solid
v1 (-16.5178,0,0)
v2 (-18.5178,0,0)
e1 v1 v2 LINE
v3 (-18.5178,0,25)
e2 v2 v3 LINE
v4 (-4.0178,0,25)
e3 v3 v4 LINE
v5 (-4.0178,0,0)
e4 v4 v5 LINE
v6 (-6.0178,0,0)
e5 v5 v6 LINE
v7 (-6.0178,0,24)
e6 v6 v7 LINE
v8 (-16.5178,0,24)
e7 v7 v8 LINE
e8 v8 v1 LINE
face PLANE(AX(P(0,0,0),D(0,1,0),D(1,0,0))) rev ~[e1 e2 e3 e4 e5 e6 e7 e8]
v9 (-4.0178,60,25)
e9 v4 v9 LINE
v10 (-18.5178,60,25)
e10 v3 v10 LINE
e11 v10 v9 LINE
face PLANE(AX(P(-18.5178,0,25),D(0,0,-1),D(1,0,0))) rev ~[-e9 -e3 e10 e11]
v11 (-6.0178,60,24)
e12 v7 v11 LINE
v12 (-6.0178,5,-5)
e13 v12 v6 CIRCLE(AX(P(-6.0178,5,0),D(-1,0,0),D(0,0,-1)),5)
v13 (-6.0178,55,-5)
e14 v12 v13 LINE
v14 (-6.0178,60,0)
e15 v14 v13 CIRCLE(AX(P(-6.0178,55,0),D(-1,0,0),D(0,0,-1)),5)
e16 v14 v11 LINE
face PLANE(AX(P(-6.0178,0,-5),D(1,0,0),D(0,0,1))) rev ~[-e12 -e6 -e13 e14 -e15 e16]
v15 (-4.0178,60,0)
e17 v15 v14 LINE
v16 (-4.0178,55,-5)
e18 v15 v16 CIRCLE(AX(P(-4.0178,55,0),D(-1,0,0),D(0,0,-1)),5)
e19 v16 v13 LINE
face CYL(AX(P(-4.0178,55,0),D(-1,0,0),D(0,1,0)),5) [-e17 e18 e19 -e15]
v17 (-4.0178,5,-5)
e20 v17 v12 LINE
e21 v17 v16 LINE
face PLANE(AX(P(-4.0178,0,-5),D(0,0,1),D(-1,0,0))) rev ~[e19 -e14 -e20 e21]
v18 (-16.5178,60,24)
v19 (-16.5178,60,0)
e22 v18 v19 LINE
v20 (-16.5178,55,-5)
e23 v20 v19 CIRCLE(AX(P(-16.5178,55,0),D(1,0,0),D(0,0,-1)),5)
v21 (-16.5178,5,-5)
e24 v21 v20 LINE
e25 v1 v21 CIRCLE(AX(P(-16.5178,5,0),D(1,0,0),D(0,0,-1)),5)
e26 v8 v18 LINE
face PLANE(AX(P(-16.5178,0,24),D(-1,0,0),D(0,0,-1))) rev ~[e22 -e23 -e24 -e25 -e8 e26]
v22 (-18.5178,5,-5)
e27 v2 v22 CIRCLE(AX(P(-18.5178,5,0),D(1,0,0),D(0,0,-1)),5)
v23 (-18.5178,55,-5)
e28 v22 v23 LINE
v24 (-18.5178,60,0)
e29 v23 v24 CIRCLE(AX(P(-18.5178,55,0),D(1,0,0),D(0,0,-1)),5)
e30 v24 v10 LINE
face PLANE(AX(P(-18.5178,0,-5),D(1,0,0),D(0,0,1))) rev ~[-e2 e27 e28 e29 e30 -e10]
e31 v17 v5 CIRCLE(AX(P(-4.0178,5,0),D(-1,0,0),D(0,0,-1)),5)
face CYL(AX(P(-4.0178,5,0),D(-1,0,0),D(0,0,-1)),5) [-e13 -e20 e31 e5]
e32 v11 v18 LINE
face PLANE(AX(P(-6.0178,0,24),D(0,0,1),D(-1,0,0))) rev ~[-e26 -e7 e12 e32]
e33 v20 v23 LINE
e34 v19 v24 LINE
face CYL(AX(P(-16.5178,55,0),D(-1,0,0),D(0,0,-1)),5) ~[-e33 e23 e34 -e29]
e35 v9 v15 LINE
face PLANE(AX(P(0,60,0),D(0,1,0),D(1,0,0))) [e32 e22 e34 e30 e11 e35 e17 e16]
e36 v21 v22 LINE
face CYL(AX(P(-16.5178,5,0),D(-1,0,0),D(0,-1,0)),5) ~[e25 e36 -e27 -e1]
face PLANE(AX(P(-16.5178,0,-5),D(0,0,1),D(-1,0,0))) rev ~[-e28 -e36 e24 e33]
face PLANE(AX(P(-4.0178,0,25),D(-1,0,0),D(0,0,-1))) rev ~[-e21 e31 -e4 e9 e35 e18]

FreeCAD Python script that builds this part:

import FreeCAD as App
import Part
import Sketcher
from FreeCAD import Vector


def edges_at(feature, points):
    """Names of the edges that pass closest to the given points."""
    edges = feature.Shape.Edges
    near = lambda p: min(range(len(edges)), key=lambda i: edges[i].distToShape(Part.Vertex(*p))[0])
    return sorted({f"Edge{near(p) + 1}" for p in points})


def add_polygon(sketch, points):
    """Adds a closed chain of lines whose ends are joined by coincident constraints."""
    first, n = sketch.GeometryCount, len(points)
    for a, b in zip(points, points[1:] + points[:1]):
        sketch.addGeometry(Part.LineSegment(App.Vector(*a, 0), App.Vector(*b, 0)), False)
    for i in range(n):
        sketch.addConstraint(Sketcher.Constraint("Coincident", first + i, 2, first + (i + 1) % n, 1))

doc = App.newDocument("Part")
body = doc.addObject("PartDesign::Body", "Body")

sketch1 = body.newObject("Sketcher::SketchObject", "Sketch")
sketch1.AttachmentSupport = (doc.getObject("XZ_Plane"), [""])
sketch1.MapMode = "FlatFace"
add_polygon(sketch1, [(-18.5, -5), (-18.5, 25), (-4, 25), (-4, -5), (-6, -5), (-6, 24), (-16.5, 24), (-16.5, -5)])
sketch1.addConstraint([
    Sketcher.Constraint("Vertical", 0),
    Sketcher.Constraint("Horizontal", 1),
    Sketcher.Constraint("Vertical", 2),
    Sketcher.Constraint("Horizontal", 3),
    Sketcher.Constraint("Vertical", 4),
    Sketcher.Constraint("Horizontal", 5),
    Sketcher.Constraint("Vertical", 6),
    Sketcher.Constraint("Horizontal", 7),
    Sketcher.Constraint("Horizontal", 3, 2, 6, 2),
    Sketcher.Constraint("Equal", 3, 7),
    Sketcher.Constraint("DistanceX", 3, 2, 3, 1, 2.0),
    Sketcher.Constraint("DistanceY", 0, 1, 0, 2, 30.0),
    Sketcher.Constraint("DistanceX", 1, 1, 1, 2, 14.5),
    Sketcher.Constraint("DistanceY", 4, 2, 1, 2, 1.0),
    Sketcher.Constraint("DistanceY", -1, 1, 0, 2, 25.0),
    Sketcher.Constraint("DistanceX", 0, 2, -1, 1, 18.5178),
])
pad1 = body.newObject("PartDesign::Pad", "Pad")
pad1.Profile = sketch1
pad1.Length = 60
pad1.Reversed = True
doc.recompute()

fillet = body.newObject("PartDesign::Fillet", "Fillet")
fillet.Base = (pad1, edges_at(pad1, [(-5.018, 0, -5)]))
fillet.Radius = 5
doc.recompute()

fillet2 = body.newObject("PartDesign::Fillet", "Fillet001")
fillet2.Base = (fillet, edges_at(fillet, [(-17.518, 0, -5)]))
fillet2.Radius = 5
doc.recompute()

fillet3 = body.newObject("PartDesign::Fillet", "Fillet002")
fillet3.Base = (fillet2, edges_at(fillet2, [(-17.518, 60, -5)]))
fillet3.Radius = 5
doc.recompute()

fillet4 = body.newObject("PartDesign::Fillet", "Fillet003")
fillet4.Base = (fillet3, edges_at(fillet3, [(-5.018, 60, -5)]))
fillet4.Radius = 5

doc.recompute()
